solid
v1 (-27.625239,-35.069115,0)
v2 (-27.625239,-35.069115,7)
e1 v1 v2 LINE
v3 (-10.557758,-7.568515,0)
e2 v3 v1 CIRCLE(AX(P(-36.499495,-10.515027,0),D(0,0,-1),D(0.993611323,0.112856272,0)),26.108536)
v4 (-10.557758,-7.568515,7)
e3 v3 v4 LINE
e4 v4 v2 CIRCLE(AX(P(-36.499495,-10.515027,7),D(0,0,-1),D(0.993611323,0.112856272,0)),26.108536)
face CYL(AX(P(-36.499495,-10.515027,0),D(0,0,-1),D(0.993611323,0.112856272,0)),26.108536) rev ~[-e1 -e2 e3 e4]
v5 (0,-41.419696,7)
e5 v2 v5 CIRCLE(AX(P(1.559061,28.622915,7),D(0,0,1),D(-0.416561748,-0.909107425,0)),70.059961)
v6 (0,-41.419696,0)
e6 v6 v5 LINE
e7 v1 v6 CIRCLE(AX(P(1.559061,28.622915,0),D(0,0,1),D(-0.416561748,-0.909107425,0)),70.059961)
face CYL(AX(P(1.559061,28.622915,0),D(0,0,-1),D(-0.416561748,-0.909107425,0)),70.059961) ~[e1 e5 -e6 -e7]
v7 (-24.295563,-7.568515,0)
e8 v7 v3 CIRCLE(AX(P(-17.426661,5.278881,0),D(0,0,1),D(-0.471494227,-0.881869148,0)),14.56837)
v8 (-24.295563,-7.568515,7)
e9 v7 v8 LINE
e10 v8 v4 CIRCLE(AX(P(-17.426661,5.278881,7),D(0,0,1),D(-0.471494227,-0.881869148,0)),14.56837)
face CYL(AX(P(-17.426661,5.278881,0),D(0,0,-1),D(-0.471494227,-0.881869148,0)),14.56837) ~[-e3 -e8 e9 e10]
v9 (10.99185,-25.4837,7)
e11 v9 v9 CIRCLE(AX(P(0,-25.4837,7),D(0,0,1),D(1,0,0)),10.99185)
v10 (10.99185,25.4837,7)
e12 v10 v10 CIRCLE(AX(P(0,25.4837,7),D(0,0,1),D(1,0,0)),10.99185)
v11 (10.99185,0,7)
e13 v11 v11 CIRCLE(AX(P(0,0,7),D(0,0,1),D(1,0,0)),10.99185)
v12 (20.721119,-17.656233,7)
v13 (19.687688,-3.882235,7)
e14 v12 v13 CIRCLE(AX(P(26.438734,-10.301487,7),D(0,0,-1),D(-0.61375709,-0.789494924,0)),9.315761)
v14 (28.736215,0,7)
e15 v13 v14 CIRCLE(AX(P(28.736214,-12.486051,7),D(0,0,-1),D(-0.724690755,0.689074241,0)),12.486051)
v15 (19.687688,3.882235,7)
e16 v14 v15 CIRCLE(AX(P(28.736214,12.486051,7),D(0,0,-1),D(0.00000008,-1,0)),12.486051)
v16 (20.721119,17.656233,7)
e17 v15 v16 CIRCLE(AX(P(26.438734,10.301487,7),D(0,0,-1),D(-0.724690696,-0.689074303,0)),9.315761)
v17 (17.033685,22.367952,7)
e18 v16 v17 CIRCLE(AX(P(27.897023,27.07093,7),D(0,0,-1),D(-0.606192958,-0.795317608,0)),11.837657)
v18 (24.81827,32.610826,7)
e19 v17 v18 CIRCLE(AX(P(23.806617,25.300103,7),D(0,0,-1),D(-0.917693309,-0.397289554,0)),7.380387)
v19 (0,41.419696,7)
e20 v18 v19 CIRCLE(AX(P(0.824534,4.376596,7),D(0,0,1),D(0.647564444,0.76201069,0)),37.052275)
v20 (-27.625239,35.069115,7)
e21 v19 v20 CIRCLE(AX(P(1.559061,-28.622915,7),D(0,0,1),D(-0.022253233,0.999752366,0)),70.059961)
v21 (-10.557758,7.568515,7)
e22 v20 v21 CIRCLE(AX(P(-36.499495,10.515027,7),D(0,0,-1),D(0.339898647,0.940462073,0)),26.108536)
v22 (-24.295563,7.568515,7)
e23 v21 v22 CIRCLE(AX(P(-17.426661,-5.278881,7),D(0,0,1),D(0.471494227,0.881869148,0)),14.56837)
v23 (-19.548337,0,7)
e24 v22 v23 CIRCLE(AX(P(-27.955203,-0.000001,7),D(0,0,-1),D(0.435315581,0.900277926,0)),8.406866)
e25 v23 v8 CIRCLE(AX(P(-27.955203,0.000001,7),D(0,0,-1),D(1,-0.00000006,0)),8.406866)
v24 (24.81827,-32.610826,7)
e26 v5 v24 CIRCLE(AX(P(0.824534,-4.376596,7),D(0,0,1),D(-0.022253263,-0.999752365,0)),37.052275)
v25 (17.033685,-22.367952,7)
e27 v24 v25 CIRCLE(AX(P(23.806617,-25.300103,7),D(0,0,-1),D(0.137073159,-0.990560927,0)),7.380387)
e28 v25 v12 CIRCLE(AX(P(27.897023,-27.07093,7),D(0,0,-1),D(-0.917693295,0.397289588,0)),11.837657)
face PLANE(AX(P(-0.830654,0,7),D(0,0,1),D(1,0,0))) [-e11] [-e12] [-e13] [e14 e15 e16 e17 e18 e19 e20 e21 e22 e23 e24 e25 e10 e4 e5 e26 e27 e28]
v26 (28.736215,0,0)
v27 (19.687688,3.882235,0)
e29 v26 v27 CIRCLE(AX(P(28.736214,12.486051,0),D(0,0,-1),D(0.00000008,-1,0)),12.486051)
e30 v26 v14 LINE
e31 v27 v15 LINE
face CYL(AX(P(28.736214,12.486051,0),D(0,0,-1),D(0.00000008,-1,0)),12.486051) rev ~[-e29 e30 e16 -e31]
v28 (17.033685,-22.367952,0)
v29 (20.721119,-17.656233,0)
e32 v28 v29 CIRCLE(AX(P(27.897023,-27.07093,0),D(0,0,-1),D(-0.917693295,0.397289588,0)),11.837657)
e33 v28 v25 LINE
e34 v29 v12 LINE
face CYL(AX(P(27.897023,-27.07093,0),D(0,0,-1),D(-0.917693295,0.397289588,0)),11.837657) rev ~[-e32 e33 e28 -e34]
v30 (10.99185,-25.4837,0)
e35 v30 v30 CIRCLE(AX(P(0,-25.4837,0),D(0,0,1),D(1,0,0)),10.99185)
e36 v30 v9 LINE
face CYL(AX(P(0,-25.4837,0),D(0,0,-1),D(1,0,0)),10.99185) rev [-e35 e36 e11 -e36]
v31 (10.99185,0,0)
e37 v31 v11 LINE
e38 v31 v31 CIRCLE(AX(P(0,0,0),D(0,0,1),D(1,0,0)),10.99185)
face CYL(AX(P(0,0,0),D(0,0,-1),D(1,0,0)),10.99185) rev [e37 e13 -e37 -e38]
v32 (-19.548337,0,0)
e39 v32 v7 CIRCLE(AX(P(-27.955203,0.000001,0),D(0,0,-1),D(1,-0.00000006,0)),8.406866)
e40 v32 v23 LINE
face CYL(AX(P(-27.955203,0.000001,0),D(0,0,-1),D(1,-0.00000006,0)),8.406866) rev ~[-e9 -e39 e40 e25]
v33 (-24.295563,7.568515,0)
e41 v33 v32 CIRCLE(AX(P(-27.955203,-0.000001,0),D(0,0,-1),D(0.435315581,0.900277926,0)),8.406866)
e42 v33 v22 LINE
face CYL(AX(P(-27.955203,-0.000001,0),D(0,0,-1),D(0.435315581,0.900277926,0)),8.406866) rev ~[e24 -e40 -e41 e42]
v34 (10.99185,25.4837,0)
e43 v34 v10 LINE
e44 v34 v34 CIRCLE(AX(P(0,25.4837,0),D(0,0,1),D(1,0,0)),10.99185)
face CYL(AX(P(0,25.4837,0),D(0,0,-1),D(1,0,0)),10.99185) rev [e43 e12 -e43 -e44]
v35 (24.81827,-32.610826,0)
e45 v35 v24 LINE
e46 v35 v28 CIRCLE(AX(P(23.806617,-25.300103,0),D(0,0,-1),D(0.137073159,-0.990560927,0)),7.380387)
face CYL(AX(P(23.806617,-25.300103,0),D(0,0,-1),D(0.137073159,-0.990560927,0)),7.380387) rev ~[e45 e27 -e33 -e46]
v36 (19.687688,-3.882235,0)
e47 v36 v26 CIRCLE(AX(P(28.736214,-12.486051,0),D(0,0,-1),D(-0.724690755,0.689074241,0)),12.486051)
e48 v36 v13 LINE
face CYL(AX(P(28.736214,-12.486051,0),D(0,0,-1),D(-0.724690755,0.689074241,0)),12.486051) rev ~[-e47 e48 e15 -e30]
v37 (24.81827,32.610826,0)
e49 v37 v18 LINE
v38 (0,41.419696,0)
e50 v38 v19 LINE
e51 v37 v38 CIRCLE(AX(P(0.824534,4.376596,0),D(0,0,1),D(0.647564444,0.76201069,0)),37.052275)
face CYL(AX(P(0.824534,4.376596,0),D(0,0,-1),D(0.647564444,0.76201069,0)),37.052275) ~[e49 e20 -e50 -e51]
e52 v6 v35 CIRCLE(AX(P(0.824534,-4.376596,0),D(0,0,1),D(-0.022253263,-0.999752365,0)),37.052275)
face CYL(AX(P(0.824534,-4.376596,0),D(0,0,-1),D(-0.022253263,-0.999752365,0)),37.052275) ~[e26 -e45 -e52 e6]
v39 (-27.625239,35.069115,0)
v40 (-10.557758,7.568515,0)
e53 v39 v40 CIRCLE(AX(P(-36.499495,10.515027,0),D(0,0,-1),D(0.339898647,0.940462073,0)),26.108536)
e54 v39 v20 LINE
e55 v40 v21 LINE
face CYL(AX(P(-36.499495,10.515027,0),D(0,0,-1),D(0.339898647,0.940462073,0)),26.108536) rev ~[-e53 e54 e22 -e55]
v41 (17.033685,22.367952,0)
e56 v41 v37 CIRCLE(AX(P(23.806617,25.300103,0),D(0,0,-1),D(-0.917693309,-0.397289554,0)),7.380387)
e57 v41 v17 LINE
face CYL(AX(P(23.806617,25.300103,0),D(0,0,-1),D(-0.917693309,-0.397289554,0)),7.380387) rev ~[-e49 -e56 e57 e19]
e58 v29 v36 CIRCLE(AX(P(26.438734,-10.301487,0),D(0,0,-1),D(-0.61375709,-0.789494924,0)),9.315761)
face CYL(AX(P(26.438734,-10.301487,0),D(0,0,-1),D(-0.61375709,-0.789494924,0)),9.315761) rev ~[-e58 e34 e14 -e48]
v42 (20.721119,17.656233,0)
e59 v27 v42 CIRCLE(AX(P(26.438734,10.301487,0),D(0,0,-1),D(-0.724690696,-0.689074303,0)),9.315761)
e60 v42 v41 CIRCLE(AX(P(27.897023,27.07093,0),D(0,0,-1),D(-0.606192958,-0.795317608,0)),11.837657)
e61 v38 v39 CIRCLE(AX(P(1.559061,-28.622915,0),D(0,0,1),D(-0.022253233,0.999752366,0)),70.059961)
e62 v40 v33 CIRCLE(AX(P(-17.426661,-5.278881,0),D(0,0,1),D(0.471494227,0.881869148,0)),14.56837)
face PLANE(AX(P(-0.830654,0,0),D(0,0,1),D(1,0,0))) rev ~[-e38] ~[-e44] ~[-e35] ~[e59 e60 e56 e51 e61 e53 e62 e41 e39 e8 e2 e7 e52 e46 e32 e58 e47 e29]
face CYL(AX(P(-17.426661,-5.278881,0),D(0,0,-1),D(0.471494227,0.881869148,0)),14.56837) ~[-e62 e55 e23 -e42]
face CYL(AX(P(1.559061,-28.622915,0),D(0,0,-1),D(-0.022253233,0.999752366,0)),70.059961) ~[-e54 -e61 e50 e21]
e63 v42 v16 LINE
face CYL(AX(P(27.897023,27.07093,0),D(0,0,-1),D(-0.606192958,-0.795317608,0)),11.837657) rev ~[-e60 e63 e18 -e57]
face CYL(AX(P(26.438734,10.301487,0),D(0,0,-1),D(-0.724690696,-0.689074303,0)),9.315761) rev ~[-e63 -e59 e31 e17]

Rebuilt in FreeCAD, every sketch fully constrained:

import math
import FreeCAD as App
import Part
import Sketcher

V = App.Vector

doc = App.newDocument("Part")
body = doc.addObject("PartDesign::Body", "Body")

sketch1 = body.newObject("Sketcher::SketchObject", "Sketch")
sketch1.AttachmentSupport = (doc.getObject("XY_Plane"), [""])
sketch1.MapMode = "FlatFace"
sketch1.addGeometry(Part.ArcOfCircle(Part.Circle(V(23.806617, 25.300103, 0), V(0, 0, 1), 7.380387), math.radians(82.121482), math.radians(203.408844)), False)
sketch1.addGeometry(Part.ArcOfCircle(Part.Circle(V(0.824534, 4.376596, 0), V(0, 0, 1), 37.052275), math.radians(49.641778), math.radians(91.275123)), False)
sketch1.addGeometry(Part.ArcOfCircle(Part.Circle(V(1.559061, -28.622915, 0), V(0, 0, 1), 70.059961), math.radians(91.275122), math.radians(114.617706)), False)
sketch1.addGeometry(Part.ArcOfCircle(Part.Circle(V(-36.499495, 10.515027, 0), V(0, 0, 1), 26.108536), math.radians(-6.479994), math.radians(70.129301)), False)
sketch1.addGeometry(Part.ArcOfCircle(Part.Circle(V(-17.426661, -5.278881, 0), V(0, 0, 1), 14.56837), math.radians(61.868666), math.radians(118.131334)), False)
sketch1.addGeometry(Part.ArcOfCircle(Part.Circle(V(-27.955203, -0.000001, 0), V(0, 0, 1), 8.406866), math.radians(0.000003), math.radians(64.194624)), False)
sketch1.addGeometry(Part.ArcOfCircle(Part.Circle(V(-27.955203, 0.000001, 0), V(0, 0, 1), 8.406866), math.radians(-64.194624), math.radians(-0.000003)), False)
sketch1.addGeometry(Part.ArcOfCircle(Part.Circle(V(-17.426661, 5.278881, 0), V(0, 0, 1), 14.56837), math.radians(-118.131334), math.radians(-61.868666)), False)
sketch1.addGeometry(Part.ArcOfCircle(Part.Circle(V(-36.499495, -10.515027, 0), V(0, 0, 1), 26.108536), math.radians(-70.129301), math.radians(6.479994)), False)
sketch1.addGeometry(Part.ArcOfCircle(Part.Circle(V(1.559061, 28.622915, 0), V(0, 0, 1), 70.059961), math.radians(-114.617706), math.radians(-91.275122)), False)
sketch1.addGeometry(Part.ArcOfCircle(Part.Circle(V(0.824534, -4.376596, 0), V(0, 0, 1), 37.052275), math.radians(-91.275123), math.radians(-49.641778)), False)
sketch1.addGeometry(Part.ArcOfCircle(Part.Circle(V(23.806617, -25.300103, 0), V(0, 0, 1), 7.380387), math.radians(156.591156), math.radians(277.878518)), False)
sketch1.addGeometry(Part.ArcOfCircle(Part.Circle(V(27.897023, -27.07093, 0), V(0, 0, 1), 11.837657), math.radians(127.314735), math.radians(156.591153)), False)
sketch1.addGeometry(Part.ArcOfCircle(Part.Circle(V(26.438734, -10.301487, 0), V(0, 0, 1), 9.315761), math.radians(136.443123), math.radians(232.138336)), False)
sketch1.addGeometry(Part.ArcOfCircle(Part.Circle(V(28.736214, -12.486051, 0), V(0, 0, 1), 12.486051), math.radians(89.999995), math.radians(136.443128)), False)
sketch1.addGeometry(Part.ArcOfCircle(Part.Circle(V(28.736214, 12.486051, 0), V(0, 0, 1), 12.486051), math.radians(-136.443128), math.radians(-89.999995)), False)
sketch1.addGeometry(Part.ArcOfCircle(Part.Circle(V(26.438734, 10.301487, 0), V(0, 0, 1), 9.315761), math.radians(127.861664), math.radians(223.556877)), False)
sketch1.addGeometry(Part.ArcOfCircle(Part.Circle(V(27.897023, 27.07093, 0), V(0, 0, 1), 11.837657), math.radians(-156.591153), math.radians(-127.314735)), False)
sketch1.addGeometry(Part.Circle(V(0, -25.4837, 0), V(0, 0, 1), 10.99185), False)
sketch1.addGeometry(Part.Circle(V(0, 0, 0), V(0, 0, 1), 10.99185), False)
sketch1.addGeometry(Part.Circle(V(0, 25.4837, 0), V(0, 0, 1), 10.99185), False)
sketch1.addConstraint(Sketcher.Constraint("Coincident", 0, 1, 1, 1))
sketch1.addConstraint(Sketcher.Constraint("Tangent", 1, 2, 2, 1))
sketch1.addConstraint(Sketcher.Constraint("Coincident", 2, 2, 3, 2))
sketch1.addConstraint(Sketcher.Constraint("Coincident", 3, 1, 4, 1))
sketch1.addConstraint(Sketcher.Constraint("Coincident", 4, 2, 5, 2))
sketch1.addConstraint(Sketcher.Constraint("Tangent", 5, 1, 6, 2))
sketch1.addConstraint(Sketcher.Constraint("Coincident", 6, 1, 7, 1))
sketch1.addConstraint(Sketcher.Constraint("Coincident", 7, 2, 8, 2))
sketch1.addConstraint(Sketcher.Constraint("Coincident", 8, 1, 9, 1))
sketch1.addConstraint(Sketcher.Constraint("Tangent", 9, 2, 10, 1))
sketch1.addConstraint(Sketcher.Constraint("Coincident", 10, 2, 11, 2))
sketch1.addConstraint(Sketcher.Constraint("Tangent", 11, 1, 12, 2))
sketch1.addConstraint(Sketcher.Constraint("Coincident", 12, 1, 13, 2))
sketch1.addConstraint(Sketcher.Constraint("Tangent", 13, 1, 14, 2))
sketch1.addConstraint(Sketcher.Constraint("Tangent", 14, 1, 15, 2))
sketch1.addConstraint(Sketcher.Constraint("Tangent", 15, 1, 16, 2))
sketch1.addConstraint(Sketcher.Constraint("Coincident", 16, 1, 17, 2))
sketch1.addConstraint(Sketcher.Constraint("Tangent", 17, 1, 0, 2))
sketch1.addConstraint(Sketcher.Constraint("Coincident", 19, 3, -1, 1))
sketch1.addConstraint(Sketcher.Constraint("Equal", 5, 6))
sketch1.addConstraint(Sketcher.Constraint("Equal", 4, 7))
sketch1.addConstraint(Sketcher.Constraint("Equal", 3, 8))
sketch1.addConstraint(Sketcher.Constraint("Equal", 2, 9))
sketch1.addConstraint(Sketcher.Constraint("Equal", 1, 10))
sketch1.addConstraint(Sketcher.Constraint("Equal", 0, 11))
sketch1.addConstraint(Sketcher.Constraint("Equal", 14, 15))
sketch1.addConstraint(Sketcher.Constraint("Equal", 13, 16))
sketch1.addConstraint(Sketcher.Constraint("Equal", 12, 17))
sketch1.addConstraint(Sketcher.Constraint("Equal", 18, 19))
sketch1.addConstraint(Sketcher.Constraint("Equal", 19, 20))
sketch1.addConstraint(Sketcher.Constraint("Symmetric", 18, 3, 20, 3, -1, 1))
sketch1.addConstraint(Sketcher.Constraint("Symmetric", 1, 2, 9, 2, -1, 1))
sketch1.addConstraint(Sketcher.Constraint("Symmetric", 4, 3, 7, 3, -1))
sketch1.addConstraint(Sketcher.Constraint("Symmetric", 3, 3, 8, 3, -1))
sketch1.addConstraint(Sketcher.Constraint("Symmetric", 2, 3, 9, 3, -1))
sketch1.addConstraint(Sketcher.Constraint("Symmetric", 0, 3, 11, 3, -1))
sketch1.addConstraint(Sketcher.Constraint("Symmetric", 14, 3, 15, 3, -1))
sketch1.addConstraint(Sketcher.Constraint("Symmetric", 12, 1, 16, 1, -1))
sketch1.addConstraint(Sketcher.Constraint("PointOnObject", 5, 3, -1))
sketch1.addConstraint(Sketcher.Constraint("PointOnObject", 18, 3, -2))
sketch1.addConstraint(Sketcher.Constraint("PointOnObject", 5, 1, -1))
sketch1.addConstraint(Sketcher.Constraint("Horizontal", 3, 1, 4, 2))
sketch1.addConstraint(Sketcher.Constraint("Diameter", 18, 21.9837))
sketch1.addConstraint(Sketcher.Constraint("Radius", 2, 70.059961))
sketch1.addConstraint(Sketcher.Constraint("Radius", 4, 14.56837))
sketch1.addConstraint(Sketcher.Constraint("Radius", 13, 9.315761))
sketch1.addConstraint(Sketcher.Constraint("Radius", 14, 12.486051))
sketch1.addConstraint(Sketcher.Constraint("Radius", 0, 7.380387))
sketch1.addConstraint(Sketcher.Constraint("Radius", 1, 37.052275))
sketch1.addConstraint(Sketcher.Constraint("Radius", 3, 26.108536))
sketch1.addConstraint(Sketcher.Constraint("Radius", 5, 8.406866))
sketch1.addConstraint(Sketcher.Constraint("Radius", 12, 11.837657))
sketch1.addConstraint(Sketcher.Constraint("DistanceY", 12, 1, 13, 1, 13.773998))
sketch1.addConstraint(Sketcher.Constraint("DistanceY", 18, 3, -1, 1, 25.4837))
sketch1.addConstraint(Sketcher.Constraint("DistanceY", 11, 3, 1, 3, 29.676699))
sketch1.addConstraint(Sketcher.Constraint("DistanceX", 10, 3, 13, 3, 25.6142))
sketch1.addConstraint(Sketcher.Constraint("DistanceX", 2, 2, 9, 3, 29.1843))
sketch1.addConstraint(Sketcher.Constraint("DistanceY", 9, 3, 2, 2, 6.4462))
sketch1.addConstraint(Sketcher.Constraint("DistanceY", 8, 1, 6, 1, 27.5006))
sketch1.addConstraint(Sketcher.Constraint("DistanceY", 11, 1, 14, 3, 9.881901))
sketch1.addConstraint(Sketcher.Constraint("DistanceX", 12, 1, 11, 3, 3.085498))
sketch1.addConstraint(Sketcher.Constraint("DistanceX", -1, 1, 2, 3, 1.559061))
sketch1.addConstraint(Sketcher.Constraint("DistanceX", 4, 3, -1, 1, 17.426661))
sketch1.addConstraint(Sketcher.Constraint("DistanceY", 4, 3, -1, 1, 5.278881))
pad1 = body.newObject("PartDesign::Pad", "Pad")
pad1.Profile = sketch1
pad1.Length = 7

doc.recompute()
